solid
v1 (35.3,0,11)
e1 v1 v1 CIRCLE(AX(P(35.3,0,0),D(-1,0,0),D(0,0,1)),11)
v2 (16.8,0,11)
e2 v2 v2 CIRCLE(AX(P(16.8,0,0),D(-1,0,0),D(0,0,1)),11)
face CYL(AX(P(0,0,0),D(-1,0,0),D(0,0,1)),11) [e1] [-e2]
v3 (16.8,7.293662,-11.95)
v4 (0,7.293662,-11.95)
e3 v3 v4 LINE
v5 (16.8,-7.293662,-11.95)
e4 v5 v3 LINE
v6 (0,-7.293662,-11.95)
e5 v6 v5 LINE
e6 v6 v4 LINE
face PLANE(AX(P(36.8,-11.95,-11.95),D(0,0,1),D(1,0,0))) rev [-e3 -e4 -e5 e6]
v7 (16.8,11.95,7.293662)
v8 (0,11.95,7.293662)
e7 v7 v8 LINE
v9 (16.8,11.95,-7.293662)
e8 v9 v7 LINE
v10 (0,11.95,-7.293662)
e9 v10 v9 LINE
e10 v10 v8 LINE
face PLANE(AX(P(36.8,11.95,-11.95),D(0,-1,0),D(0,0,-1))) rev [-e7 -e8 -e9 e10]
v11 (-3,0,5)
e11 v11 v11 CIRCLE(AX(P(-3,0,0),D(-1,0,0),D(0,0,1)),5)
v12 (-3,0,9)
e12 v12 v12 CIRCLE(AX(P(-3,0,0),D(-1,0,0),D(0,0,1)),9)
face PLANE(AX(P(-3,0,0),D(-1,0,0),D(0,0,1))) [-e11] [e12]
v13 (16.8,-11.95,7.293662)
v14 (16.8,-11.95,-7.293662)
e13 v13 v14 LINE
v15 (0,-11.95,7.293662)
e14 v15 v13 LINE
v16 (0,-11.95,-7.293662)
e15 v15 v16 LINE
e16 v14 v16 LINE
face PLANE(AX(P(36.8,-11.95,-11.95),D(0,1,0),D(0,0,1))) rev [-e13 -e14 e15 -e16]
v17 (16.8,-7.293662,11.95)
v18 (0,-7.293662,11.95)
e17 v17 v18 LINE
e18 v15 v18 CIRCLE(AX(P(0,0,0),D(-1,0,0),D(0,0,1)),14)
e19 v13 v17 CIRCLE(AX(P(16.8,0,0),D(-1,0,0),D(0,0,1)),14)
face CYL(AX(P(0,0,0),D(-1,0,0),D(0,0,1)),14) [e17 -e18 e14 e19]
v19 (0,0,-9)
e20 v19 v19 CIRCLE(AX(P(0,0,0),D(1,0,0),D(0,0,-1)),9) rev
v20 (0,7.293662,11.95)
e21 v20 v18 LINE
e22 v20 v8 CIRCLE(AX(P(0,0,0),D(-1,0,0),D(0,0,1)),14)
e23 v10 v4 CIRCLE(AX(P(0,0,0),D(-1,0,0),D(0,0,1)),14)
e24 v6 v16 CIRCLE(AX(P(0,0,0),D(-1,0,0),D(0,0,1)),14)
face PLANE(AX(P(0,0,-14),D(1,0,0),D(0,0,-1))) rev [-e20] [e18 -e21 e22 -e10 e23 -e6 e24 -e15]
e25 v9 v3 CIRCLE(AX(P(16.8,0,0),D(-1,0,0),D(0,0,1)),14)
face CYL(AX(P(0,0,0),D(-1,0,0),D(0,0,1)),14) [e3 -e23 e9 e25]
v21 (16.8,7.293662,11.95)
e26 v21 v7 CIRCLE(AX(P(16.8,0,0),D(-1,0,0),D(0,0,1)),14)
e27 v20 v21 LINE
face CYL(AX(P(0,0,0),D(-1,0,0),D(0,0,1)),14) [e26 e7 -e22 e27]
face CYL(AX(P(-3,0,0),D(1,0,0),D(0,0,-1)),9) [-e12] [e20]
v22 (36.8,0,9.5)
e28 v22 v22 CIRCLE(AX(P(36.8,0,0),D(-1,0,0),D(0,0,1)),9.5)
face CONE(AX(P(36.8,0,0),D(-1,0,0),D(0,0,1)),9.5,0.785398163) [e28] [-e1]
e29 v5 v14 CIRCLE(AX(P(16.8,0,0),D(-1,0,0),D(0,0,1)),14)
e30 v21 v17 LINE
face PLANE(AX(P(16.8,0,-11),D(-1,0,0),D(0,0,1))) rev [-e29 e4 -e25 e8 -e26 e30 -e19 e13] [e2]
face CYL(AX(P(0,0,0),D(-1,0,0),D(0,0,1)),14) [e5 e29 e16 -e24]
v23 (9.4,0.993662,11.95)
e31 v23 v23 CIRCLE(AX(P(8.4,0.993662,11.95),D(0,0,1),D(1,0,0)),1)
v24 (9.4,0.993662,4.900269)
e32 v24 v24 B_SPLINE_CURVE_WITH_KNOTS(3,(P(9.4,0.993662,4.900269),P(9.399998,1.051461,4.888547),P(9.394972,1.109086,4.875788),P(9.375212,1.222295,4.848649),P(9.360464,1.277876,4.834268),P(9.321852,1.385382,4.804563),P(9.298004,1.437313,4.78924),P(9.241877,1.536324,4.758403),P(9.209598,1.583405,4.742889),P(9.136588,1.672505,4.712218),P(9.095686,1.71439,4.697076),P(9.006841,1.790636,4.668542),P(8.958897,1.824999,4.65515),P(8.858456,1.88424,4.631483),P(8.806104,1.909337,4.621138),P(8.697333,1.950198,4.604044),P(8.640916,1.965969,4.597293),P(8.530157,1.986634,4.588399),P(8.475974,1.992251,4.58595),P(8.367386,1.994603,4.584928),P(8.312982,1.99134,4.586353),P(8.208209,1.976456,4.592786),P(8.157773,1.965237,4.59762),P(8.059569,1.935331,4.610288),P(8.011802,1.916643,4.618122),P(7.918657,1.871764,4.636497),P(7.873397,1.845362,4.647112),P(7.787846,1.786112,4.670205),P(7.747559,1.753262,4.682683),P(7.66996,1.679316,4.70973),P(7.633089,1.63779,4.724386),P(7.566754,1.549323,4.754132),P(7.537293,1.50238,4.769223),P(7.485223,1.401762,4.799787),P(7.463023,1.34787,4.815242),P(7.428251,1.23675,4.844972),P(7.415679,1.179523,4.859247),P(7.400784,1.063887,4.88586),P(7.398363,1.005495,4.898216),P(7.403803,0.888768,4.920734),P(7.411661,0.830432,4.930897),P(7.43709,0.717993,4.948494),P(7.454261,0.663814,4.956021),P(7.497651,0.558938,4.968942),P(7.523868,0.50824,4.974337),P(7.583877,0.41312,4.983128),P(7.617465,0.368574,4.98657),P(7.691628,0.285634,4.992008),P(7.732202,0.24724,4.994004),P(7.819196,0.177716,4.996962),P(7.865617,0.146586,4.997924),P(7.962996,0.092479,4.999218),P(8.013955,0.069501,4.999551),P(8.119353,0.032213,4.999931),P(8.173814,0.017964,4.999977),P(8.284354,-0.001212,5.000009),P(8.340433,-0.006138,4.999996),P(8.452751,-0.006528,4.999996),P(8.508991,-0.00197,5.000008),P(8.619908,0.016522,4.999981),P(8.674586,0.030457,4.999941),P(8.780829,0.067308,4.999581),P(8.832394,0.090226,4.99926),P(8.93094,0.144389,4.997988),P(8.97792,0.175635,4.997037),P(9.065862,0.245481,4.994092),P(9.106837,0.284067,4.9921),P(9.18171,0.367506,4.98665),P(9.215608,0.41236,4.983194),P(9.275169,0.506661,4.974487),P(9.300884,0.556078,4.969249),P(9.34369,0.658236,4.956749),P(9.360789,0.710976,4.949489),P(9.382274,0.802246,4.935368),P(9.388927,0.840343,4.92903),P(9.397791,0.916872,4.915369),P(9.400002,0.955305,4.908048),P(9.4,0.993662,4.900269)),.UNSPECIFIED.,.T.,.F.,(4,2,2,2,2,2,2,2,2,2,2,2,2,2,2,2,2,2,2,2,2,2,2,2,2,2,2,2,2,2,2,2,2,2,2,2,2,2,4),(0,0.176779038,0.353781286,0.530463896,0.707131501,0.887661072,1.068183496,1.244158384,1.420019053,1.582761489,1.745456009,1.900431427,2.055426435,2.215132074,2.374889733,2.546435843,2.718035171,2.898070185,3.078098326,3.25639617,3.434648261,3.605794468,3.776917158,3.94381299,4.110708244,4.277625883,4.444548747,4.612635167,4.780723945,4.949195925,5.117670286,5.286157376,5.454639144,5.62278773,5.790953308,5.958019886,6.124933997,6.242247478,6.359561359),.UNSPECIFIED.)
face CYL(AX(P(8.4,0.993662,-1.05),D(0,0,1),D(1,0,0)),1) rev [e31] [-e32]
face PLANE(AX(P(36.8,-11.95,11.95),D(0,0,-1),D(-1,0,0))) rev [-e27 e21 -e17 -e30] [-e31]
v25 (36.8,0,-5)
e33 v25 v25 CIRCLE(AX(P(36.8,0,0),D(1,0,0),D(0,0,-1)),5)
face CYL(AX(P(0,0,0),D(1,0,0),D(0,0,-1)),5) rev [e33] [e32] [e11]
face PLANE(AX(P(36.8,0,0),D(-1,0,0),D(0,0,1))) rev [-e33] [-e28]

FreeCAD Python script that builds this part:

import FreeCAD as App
import Part
import Sketcher
Q = App.Units.Quantity


def add_polygon(sketch, points):
    """Adds a closed chain of lines whose ends are joined by coincident constraints."""
    first, n = sketch.GeometryCount, len(points)
    for a, b in zip(points, points[1:] + points[:1]):
        sketch.addGeometry(Part.LineSegment(App.Vector(*a, 0), App.Vector(*b, 0)), False)
    for i in range(n):
        sketch.addConstraint(Sketcher.Constraint("Coincident", first + i, 2, first + (i + 1) % n, 1))

doc = App.newDocument("Part")
params = doc.addObject("Spreadsheet::Sheet", "Params")
for row, (alias, value) in enumerate([
    ("sketch1_height", "3 mm"),
    ("sketch1_height2", "14 mm"),
    ("sketch1_width", "36.8 mm"),
    ("sketch1_width2", "18.5 mm"),
    ("sketch1_width3", "16.8 mm"),
    ("revolution_angle", "360 deg"),
    ("sketch2_width", "23.9 mm"),
    ("sketch3_diameter", "10 mm"),
    ("sketch4_diameter", "2 mm"),
    ("pocket3_length", "13 mm"),
    ("sketch5_diameter", "18 mm"),
    ("sketch5_diameter2", "10 mm"),
    ("pad1_length", "3 mm"),
], start=1):
    params.set(f"A{row}", alias)
    params.set(f"B{row}", "=" + value)
    params.setAlias(f"B{row}", alias)

body = doc.addObject("PartDesign::Body", "Body")

# Sketch on XZ plane
sketch1 = doc.addObject("Sketcher::SketchObject", "Sketch")
body.addObject(sketch1)
sketch1.AttachmentSupport = (doc.XZ_Plane, [""])
sketch1.MapMode = "FlatFace"
add_polygon(sketch1, [(0, 0), (36.8, 0), (36.8, -9.5), (35.3, -11), (16.8, -11), (16.8, -14), (0, -14)])  # lines 0-6
sketch1.addConstraint(Sketcher.Constraint("Horizontal", 0))
sketch1.addConstraint(Sketcher.Constraint("Vertical", 1))
sketch1.addConstraint(Sketcher.Constraint("Horizontal", 3))
sketch1.addConstraint(Sketcher.Constraint("Vertical", 4))
sketch1.addConstraint(Sketcher.Constraint("Horizontal", 5))
sketch1.addConstraint(Sketcher.Constraint("Vertical", 6))
sketch1.addConstraint(Sketcher.Constraint("Coincident", 6, 2, -1, 1))
sketch1.addConstraint(Sketcher.Constraint("DistanceY", 4, 2, 4, 1, 3.0))
sketch1.addConstraint(Sketcher.Constraint("DistanceY", 6, 1, 6, 2, 14.0))
sketch1.addConstraint(Sketcher.Constraint("Angle", 2, Q("-135 deg")))
sketch1.addConstraint(Sketcher.Constraint("DistanceX", 0, 1, 0, 2, 36.8))
sketch1.addConstraint(Sketcher.Constraint("DistanceX", 3, 2, 3, 1, 18.5))
sketch1.addConstraint(Sketcher.Constraint("DistanceX", 5, 2, 5, 1, 16.8))
sketch1.setExpression("Constraints[14]", "Params.sketch1_height")
sketch1.setExpression("Constraints[15]", "Params.sketch1_height2")
sketch1.setExpression("Constraints[17]", "Params.sketch1_width")
sketch1.setExpression("Constraints[18]", "Params.sketch1_width2")
sketch1.setExpression("Constraints[19]", "Params.sketch1_width3")
revolution = doc.addObject("PartDesign::Revolution", "Revolution")
body.addObject(revolution)
revolution.Profile = sketch1
revolution.ReferenceAxis = (sketch1, ["H_Axis"])
revolution.setExpression("Angle", "Params.revolution_angle")

# Sketch on YZ plane
sketch2 = doc.addObject("Sketcher::SketchObject", "Sketch001")
body.addObject(sketch2)
sketch2.AttachmentSupport = (doc.YZ_Plane, [""])
sketch2.MapMode = "FlatFace"
add_polygon(sketch2, [(20, 20), (-20, 20), (-20, -20), (20, -20)])  # lines 0-3
add_polygon(sketch2, [(-12, -12), (-12, 12), (12, 12), (12, -12)])  # lines 4-7
sketch2.addConstraint(Sketcher.Constraint("Horizontal", 0))
sketch2.addConstraint(Sketcher.Constraint("Vertical", 1))
sketch2.addConstraint(Sketcher.Constraint("Horizontal", 2))
sketch2.addConstraint(Sketcher.Constraint("Vertical", 3))
sketch2.addConstraint(Sketcher.Constraint("Vertical", 4))
sketch2.addConstraint(Sketcher.Constraint("Horizontal", 5))
sketch2.addConstraint(Sketcher.Constraint("Vertical", 6))
sketch2.addConstraint(Sketcher.Constraint("Horizontal", 7))
sketch2.addConstraint(Sketcher.Constraint("Symmetric", 0, 2, 2, 2, -1, 1))
sketch2.addConstraint(Sketcher.Constraint("Symmetric", 4, 2, 6, 2, -1, 1))
sketch2.addConstraint(Sketcher.Constraint("Equal", 2, 1))
sketch2.addConstraint(Sketcher.Constraint("Equal", 7, 4))
sketch2.addConstraint(Sketcher.Constraint("DistanceX", 5, 1, 5, 2, 23.9))
sketch2.addConstraint(Sketcher.Constraint("DistanceX", 0, 2, 0, 1, 40.812))
sketch2.setExpression("Constraints[20]", "Params.sketch2_width")
pocket1 = doc.addObject("PartDesign::Pocket", "Pocket")
body.addObject(pocket1)
pocket1.Profile = sketch2
pocket1.Type = "ThroughAll"
pocket1.Reversed = True

# Sketch on YZ plane
sketch3 = doc.addObject("Sketcher::SketchObject", "Sketch002")
body.addObject(sketch3)
sketch3.AttachmentSupport = (doc.YZ_Plane, [""])
sketch3.MapMode = "FlatFace"
sketch3.AttachmentOffset = App.Placement(App.Vector(0, 0, 36.8), App.Rotation())
sketch3.addGeometry(Part.Circle(App.Vector(0, 0, 0), App.Vector(0, 0, 1), 5), False)
sketch3.addConstraint(Sketcher.Constraint("Coincident", 0, 3, -1, 1))
sketch3.addConstraint(Sketcher.Constraint("Diameter", 0, 10.0))
sketch3.setExpression("Constraints[1]", "Params.sketch3_diameter")
pocket2 = doc.addObject("PartDesign::Pocket", "Pocket001")
body.addObject(pocket2)
pocket2.Profile = sketch3
pocket2.Type = "ThroughAll"

# Sketch on XY plane
sketch4 = doc.addObject("Sketcher::SketchObject", "Sketch003")
body.addObject(sketch4)
sketch4.AttachmentSupport = (doc.XY_Plane, [""])
sketch4.MapMode = "FlatFace"
sketch4.AttachmentOffset = App.Placement(App.Vector(0, 0, 11.95), App.Rotation())
sketch4.addGeometry(Part.Circle(App.Vector(8.4, 1, 0), App.Vector(0, 0, 1), 1), False)
sketch4.addConstraint(Sketcher.Constraint("Diameter", 0, 2.0))
sketch4.addConstraint(Sketcher.Constraint("DistanceX", -1, 1, 0, 3, 8.4))
sketch4.addConstraint(Sketcher.Constraint("DistanceY", -1, 1, 0, 3, 0.993662))
sketch4.setExpression("Constraints[0]", "Params.sketch4_diameter")
pocket3 = doc.addObject("PartDesign::Pocket", "Pocket002")
body.addObject(pocket3)
pocket3.Profile = sketch4
pocket3.setExpression("Length", "Params.pocket3_length")

# Sketch on YZ plane
sketch5 = doc.addObject("Sketcher::SketchObject", "Sketch004")
body.addObject(sketch5)
sketch5.AttachmentSupport = (doc.YZ_Plane, [""])
sketch5.MapMode = "FlatFace"
sketch5.addGeometry(Part.Circle(App.Vector(0, 0, 0), App.Vector(0, 0, 1), 9), False)
sketch5.addGeometry(Part.Circle(App.Vector(0, 0, 0), App.Vector(0, 0, 1), 5), False)
sketch5.addConstraint(Sketcher.Constraint("Coincident", 0, 3, -1, 1))
sketch5.addConstraint(Sketcher.Constraint("Coincident", 1, 3, -1, 1))
sketch5.addConstraint(Sketcher.Constraint("Diameter", 0, 18.0))
sketch5.addConstraint(Sketcher.Constraint("Diameter", 1, 10.0))
sketch5.setExpression("Constraints[2]", "Params.sketch5_diameter")
sketch5.setExpression("Constraints[3]", "Params.sketch5_diameter2")
pad1 = doc.addObject("PartDesign::Pad", "Pad")
body.addObject(pad1)
pad1.Profile = sketch5
pad1.setExpression("Length", "Params.pad1_length")
pad1.Reversed = True

doc.recompute()
